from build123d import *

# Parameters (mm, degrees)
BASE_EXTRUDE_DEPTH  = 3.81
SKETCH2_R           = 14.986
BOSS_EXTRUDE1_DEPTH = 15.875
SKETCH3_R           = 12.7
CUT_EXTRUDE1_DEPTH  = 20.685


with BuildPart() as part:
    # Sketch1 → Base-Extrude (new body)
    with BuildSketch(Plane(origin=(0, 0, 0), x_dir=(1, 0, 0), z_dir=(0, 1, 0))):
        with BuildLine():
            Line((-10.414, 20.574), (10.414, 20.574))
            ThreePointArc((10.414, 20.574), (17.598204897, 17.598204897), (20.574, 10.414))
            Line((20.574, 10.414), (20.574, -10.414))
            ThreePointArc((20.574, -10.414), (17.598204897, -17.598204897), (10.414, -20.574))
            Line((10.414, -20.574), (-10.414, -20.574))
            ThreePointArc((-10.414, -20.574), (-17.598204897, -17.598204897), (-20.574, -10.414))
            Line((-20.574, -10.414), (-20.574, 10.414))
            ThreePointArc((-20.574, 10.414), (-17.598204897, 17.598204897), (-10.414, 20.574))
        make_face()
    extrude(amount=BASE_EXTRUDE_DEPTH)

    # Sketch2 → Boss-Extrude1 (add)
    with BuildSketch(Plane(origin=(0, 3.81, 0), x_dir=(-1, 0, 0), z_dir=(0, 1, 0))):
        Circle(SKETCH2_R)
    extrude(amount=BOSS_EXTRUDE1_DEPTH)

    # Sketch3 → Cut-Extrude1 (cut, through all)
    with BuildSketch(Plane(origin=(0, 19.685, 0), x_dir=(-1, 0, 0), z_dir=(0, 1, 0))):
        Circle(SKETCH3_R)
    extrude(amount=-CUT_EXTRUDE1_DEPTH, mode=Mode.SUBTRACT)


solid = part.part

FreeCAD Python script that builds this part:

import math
import FreeCAD as App
import Part
import Sketcher
Q = App.Units.Quantity

doc = App.newDocument("Part")
body = doc.addObject("PartDesign::Body", "Body")

# Sketch on XZ plane
sketch1 = body.newObject("Sketcher::SketchObject", "Sketch")
sketch1.AttachmentSupport = (doc.getObject("XZ_Plane"), [""])
sketch1.MapMode = "FlatFace"
sketch1.addGeometry([
    Part.LineSegment(App.Vector(10, -21, 0), App.Vector(-10, -21, 0)),  # 0
    Part.ArcOfCircle(Part.Circle(App.Vector(-10, -10, 0), App.Vector(0, 0, 1), 10), math.radians(180), math.radians(270)),  # 1
    Part.LineSegment(App.Vector(-21, -10, 0), App.Vector(-21, 10, 0)),  # 2
    Part.ArcOfCircle(Part.Circle(App.Vector(-10, 10, 0), App.Vector(0, 0, 1), 10), math.radians(90), math.radians(180)),  # 3
    Part.LineSegment(App.Vector(-10, 21, 0), App.Vector(10, 21, 0)),  # 4
    Part.ArcOfCircle(Part.Circle(App.Vector(10, 10, 0), App.Vector(0, 0, 1), 10), math.radians(0), math.radians(90)),  # 5
    Part.LineSegment(App.Vector(21, 10, 0), App.Vector(21, -10, 0)),  # 6
    Part.ArcOfCircle(Part.Circle(App.Vector(10, -10, 0), App.Vector(0, 0, 1), 10), math.radians(-90), math.radians(0)),  # 7
], False)
sketch1.addConstraint([
    Sketcher.Constraint("Tangent", 0, 2, 1, 2),
    Sketcher.Constraint("Tangent", 1, 1, 2, 1),
    Sketcher.Constraint("Tangent", 2, 2, 3, 2),
    Sketcher.Constraint("Tangent", 3, 1, 4, 1),
    Sketcher.Constraint("Tangent", 4, 2, 5, 2),
    Sketcher.Constraint("Tangent", 5, 1, 6, 1),
    Sketcher.Constraint("Tangent", 6, 2, 7, 2),
    Sketcher.Constraint("Tangent", 7, 1, 0, 1),
    Sketcher.Constraint("Horizontal", 0),
    Sketcher.Constraint("Vertical", 2),
    Sketcher.Constraint("Horizontal", 4),
    Sketcher.Constraint("Vertical", 6),
    Sketcher.Constraint("Equal", 1, 3),
    Sketcher.Constraint("Equal", 3, 5),
    Sketcher.Constraint("Equal", 5, 7),
    Sketcher.Constraint("Symmetric", 1, 3, 5, 3, -1, 1),
    Sketcher.Constraint("Equal", 4, 2),
    Sketcher.Constraint("Radius", 1, Q("0.4 in")),
    Sketcher.Constraint("DistanceX", 0, 2, 0, 1, Q("0.82 in")),
])
pad1 = body.newObject("PartDesign::Pad", "Pad")
pad1.Profile = sketch1
pad1.Length = Q("0.15 in")
pad1.Reversed = True

# Sketch on XZ plane
sketch2 = body.newObject("Sketcher::SketchObject", "Sketch001")
sketch2.AttachmentSupport = (doc.getObject("XZ_Plane"), [""])
sketch2.MapMode = "FlatFace"
sketch2.AttachmentOffset = App.Placement(App.Vector(0, 0, -0.15 * 25.4), App.Rotation())
sketch2.addGeometry(Part.Circle(App.Vector(0, 0, 0), App.Vector(0, 0, 1), 15), False)
sketch2.addConstraint([
    Sketcher.Constraint("Coincident", 0, 3, -1, 1),
    Sketcher.Constraint("Diameter", 0, Q("1.18 in")),
])
pad2 = body.newObject("PartDesign::Pad", "Pad001")
pad2.Profile = sketch2
pad2.Length = Q("0.625 in")
pad2.Reversed = True

# Sketch on XZ plane
sketch3 = body.newObject("Sketcher::SketchObject", "Sketch002")
sketch3.AttachmentSupport = (doc.getObject("XZ_Plane"), [""])
sketch3.MapMode = "FlatFace"
sketch3.AttachmentOffset = App.Placement(App.Vector(0, 0, -0.775 * 25.4), App.Rotation())
sketch3.addGeometry(Part.Circle(App.Vector(0, 0, 0), App.Vector(0, 0, 1), 13), False)
sketch3.addConstraint([
    Sketcher.Constraint("Coincident", 0, 3, -1, 1),
    Sketcher.Constraint("Diameter", 0, Q("1 in")),
])
pocket1 = body.newObject("PartDesign::Pocket", "Pocket")
pocket1.Profile = sketch3
pocket1.Type = "ThroughAll"
pocket1.Reversed = True

doc.recompute()
